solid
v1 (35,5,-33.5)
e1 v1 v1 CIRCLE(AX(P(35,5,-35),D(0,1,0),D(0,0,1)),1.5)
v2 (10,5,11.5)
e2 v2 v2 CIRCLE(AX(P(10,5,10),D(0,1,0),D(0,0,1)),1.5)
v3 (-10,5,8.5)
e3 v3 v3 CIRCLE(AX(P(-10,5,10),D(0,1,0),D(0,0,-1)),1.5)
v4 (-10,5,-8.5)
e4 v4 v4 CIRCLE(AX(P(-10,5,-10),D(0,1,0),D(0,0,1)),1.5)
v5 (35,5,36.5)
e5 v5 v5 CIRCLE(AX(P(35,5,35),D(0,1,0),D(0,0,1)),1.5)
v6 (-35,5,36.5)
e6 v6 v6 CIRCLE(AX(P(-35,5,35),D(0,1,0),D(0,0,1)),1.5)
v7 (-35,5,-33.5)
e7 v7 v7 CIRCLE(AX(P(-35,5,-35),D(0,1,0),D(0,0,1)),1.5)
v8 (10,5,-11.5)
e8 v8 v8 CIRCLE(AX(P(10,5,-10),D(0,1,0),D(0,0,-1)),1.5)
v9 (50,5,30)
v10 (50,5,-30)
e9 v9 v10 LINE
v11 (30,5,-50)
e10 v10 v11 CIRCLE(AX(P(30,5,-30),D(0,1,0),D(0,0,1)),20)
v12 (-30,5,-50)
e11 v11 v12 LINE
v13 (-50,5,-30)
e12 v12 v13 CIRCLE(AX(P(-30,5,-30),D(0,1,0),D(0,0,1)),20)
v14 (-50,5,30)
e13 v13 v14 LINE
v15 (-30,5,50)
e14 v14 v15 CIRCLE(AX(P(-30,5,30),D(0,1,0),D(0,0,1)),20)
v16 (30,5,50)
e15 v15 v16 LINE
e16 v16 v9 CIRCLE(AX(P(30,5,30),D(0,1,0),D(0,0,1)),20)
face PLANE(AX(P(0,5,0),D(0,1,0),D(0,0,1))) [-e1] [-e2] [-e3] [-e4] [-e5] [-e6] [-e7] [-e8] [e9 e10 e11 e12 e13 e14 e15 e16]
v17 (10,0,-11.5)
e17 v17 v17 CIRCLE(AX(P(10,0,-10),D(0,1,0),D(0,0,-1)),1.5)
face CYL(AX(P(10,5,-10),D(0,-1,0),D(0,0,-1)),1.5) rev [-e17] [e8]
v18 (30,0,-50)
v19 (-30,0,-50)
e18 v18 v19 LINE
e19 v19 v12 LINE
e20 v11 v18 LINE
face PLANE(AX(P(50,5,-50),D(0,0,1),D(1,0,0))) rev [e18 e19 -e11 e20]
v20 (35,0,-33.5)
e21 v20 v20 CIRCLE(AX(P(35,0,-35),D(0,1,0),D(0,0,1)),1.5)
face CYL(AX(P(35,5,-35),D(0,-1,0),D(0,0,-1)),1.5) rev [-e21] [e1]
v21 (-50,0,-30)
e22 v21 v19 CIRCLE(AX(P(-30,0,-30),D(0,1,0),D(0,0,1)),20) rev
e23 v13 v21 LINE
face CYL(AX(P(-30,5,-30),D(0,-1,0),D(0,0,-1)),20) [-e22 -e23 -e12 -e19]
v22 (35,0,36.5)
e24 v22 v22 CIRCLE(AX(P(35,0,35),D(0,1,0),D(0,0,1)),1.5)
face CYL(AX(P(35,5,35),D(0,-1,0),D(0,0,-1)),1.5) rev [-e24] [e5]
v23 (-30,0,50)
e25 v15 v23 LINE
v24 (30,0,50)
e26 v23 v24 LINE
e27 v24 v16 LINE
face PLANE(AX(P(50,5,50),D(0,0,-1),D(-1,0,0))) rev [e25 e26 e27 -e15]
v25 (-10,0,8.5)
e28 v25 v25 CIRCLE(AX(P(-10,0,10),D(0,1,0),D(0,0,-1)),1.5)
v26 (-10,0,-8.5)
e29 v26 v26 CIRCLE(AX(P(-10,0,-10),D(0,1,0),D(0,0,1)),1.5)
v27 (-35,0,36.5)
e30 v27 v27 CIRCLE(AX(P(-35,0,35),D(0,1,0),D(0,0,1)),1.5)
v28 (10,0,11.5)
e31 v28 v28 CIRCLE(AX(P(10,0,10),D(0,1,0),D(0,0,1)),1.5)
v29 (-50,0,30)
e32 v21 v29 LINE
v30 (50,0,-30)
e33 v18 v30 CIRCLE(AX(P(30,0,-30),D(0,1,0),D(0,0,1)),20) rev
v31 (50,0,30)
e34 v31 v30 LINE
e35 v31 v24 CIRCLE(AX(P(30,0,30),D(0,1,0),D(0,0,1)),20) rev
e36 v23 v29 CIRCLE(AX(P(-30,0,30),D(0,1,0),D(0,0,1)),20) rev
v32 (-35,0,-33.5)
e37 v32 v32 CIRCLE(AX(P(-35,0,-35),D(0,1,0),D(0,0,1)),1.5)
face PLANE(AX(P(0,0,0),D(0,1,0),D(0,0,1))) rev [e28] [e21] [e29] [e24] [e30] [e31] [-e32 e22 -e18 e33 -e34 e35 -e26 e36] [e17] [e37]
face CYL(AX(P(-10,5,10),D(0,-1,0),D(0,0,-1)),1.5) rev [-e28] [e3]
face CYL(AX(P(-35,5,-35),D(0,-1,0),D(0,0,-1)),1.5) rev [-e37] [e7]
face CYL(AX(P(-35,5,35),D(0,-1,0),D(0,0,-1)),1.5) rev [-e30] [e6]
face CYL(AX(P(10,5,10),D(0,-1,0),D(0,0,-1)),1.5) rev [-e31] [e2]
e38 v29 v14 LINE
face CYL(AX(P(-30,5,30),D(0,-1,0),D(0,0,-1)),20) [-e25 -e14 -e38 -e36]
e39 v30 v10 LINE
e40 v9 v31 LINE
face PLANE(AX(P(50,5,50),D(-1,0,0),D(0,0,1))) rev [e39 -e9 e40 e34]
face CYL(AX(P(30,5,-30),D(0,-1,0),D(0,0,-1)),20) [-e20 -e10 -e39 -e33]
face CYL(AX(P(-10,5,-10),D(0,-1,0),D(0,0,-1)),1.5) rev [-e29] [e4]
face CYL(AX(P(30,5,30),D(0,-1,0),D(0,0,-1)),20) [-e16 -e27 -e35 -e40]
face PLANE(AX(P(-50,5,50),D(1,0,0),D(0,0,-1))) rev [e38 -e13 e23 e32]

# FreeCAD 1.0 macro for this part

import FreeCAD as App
import Part
import Sketcher
from FreeCAD import Vector
Q = App.Units.Quantity


def edges_at(feature, points):
    """Names of the edges that pass closest to the given points."""
    edges = feature.Shape.Edges
    near = lambda p: min(range(len(edges)), key=lambda i: edges[i].distToShape(Part.Vertex(*p))[0])
    return sorted({f"Edge{near(p) + 1}" for p in points})


def add_polygon(sketch, points):
    """Adds a closed chain of lines whose ends are joined by coincident constraints."""
    first, n = sketch.GeometryCount, len(points)
    for a, b in zip(points, points[1:] + points[:1]):
        sketch.addGeometry(Part.LineSegment(App.Vector(*a, 0), App.Vector(*b, 0)), False)
    for i in range(n):
        sketch.addConstraint(Sketcher.Constraint("Coincident", first + i, 2, first + (i + 1) % n, 1))

doc = App.newDocument("Part")
body = doc.addObject("PartDesign::Body", "Body")

# Sketch on XZ plane
sketch1 = body.newObject("Sketcher::SketchObject", "Sketch")
sketch1.AttachmentSupport = (doc.getObject("XZ_Plane"), [""])
sketch1.MapMode = "FlatFace"
add_polygon(sketch1, [(-50, -50), (-50, 50), (50, 50), (50, -50)])  # lines 0-3
sketch1.addGeometry(Part.Circle(Vector(-35, 35, 0), Vector(0, 0, 1), 1.5), False)  # 4
sketch1.addGeometry(Part.Circle(Vector(-10, 10, 0), Vector(0, 0, 1), 1.5), False)  # 5
sketch1.addGeometry(Part.Circle(Vector(35, 35, 0), Vector(0, 0, 1), 1.5), False)  # 6
sketch1.addGeometry(Part.Circle(Vector(10, 10, 0), Vector(0, 0, 1), 1.5), False)  # 7
sketch1.addGeometry(Part.Circle(Vector(-10, -10, 0), Vector(0, 0, 1), 1.5), False)  # 8
sketch1.addGeometry(Part.Circle(Vector(-35, -35, 0), Vector(0, 0, 1), 1.5), False)  # 9
sketch1.addGeometry(Part.Circle(Vector(10, -10, 0), Vector(0, 0, 1), 1.5), False)  # 10
sketch1.addGeometry(Part.Circle(Vector(35, -35, 0), Vector(0, 0, 1), 1.5), False)  # 11
sketch1.addConstraint(Sketcher.Constraint("Vertical", 0))
sketch1.addConstraint(Sketcher.Constraint("Horizontal", 1))
sketch1.addConstraint(Sketcher.Constraint("Vertical", 2))
sketch1.addConstraint(Sketcher.Constraint("Horizontal", 3))
sketch1.addConstraint(Sketcher.Constraint("Equal", 4, 5))
sketch1.addConstraint(Sketcher.Constraint("Equal", 5, 6))
sketch1.addConstraint(Sketcher.Constraint("Equal", 6, 7))
sketch1.addConstraint(Sketcher.Constraint("Equal", 7, 8))
sketch1.addConstraint(Sketcher.Constraint("Equal", 8, 9))
sketch1.addConstraint(Sketcher.Constraint("Equal", 9, 10))
sketch1.addConstraint(Sketcher.Constraint("Equal", 10, 11))
sketch1.addConstraint(Sketcher.Constraint("Symmetric", 7, 3, 8, 3, -1, 1))
sketch1.addConstraint(Sketcher.Constraint("Symmetric", 6, 3, 9, 3, -1, 1))
sketch1.addConstraint(Sketcher.Constraint("Symmetric", 5, 3, 10, 3, -1, 1))
sketch1.addConstraint(Sketcher.Constraint("Symmetric", 4, 3, 11, 3, -1, 1))
sketch1.addConstraint(Sketcher.Constraint("Symmetric", 0, 2, 2, 2, -1, 1))
sketch1.addConstraint(Sketcher.Constraint("Symmetric", 4, 3, 6, 3, -2))
sketch1.addConstraint(Sketcher.Constraint("Symmetric", 5, 3, 7, 3, -2))
sketch1.addConstraint(Sketcher.Constraint("Equal", 3, 0))
sketch1.addConstraint(Sketcher.Constraint("Diameter", 4, Q("3 mm")))
sketch1.addConstraint(Sketcher.Constraint("DistanceX", 1, 1, 1, 2, Q("100 mm")))
sketch1.addConstraint(Sketcher.Constraint("DistanceX", 4, 3, -1, 1, Q("35 mm")))
sketch1.addConstraint(Sketcher.Constraint("DistanceY", -1, 1, 4, 3, Q("35 mm")))
sketch1.addConstraint(Sketcher.Constraint("DistanceX", 5, 3, -1, 1, Q("10 mm")))
sketch1.addConstraint(Sketcher.Constraint("DistanceY", -1, 1, 5, 3, Q("10 mm")))
pad1 = body.newObject("PartDesign::Pad", "Pad")
pad1.Profile = sketch1
pad1.Length = 5
pad1.Reversed = True
doc.recompute()

fillet = body.newObject("PartDesign::Fillet", "Fillet")
fillet.Base = (pad1, edges_at(pad1, [
    (-50, 2.5, -50),
    (50, 2.5, -50),
    (50, 2.5, 50),
    (-50, 2.5, 50),
]))
fillet.Radius = 20

doc.recompute()
